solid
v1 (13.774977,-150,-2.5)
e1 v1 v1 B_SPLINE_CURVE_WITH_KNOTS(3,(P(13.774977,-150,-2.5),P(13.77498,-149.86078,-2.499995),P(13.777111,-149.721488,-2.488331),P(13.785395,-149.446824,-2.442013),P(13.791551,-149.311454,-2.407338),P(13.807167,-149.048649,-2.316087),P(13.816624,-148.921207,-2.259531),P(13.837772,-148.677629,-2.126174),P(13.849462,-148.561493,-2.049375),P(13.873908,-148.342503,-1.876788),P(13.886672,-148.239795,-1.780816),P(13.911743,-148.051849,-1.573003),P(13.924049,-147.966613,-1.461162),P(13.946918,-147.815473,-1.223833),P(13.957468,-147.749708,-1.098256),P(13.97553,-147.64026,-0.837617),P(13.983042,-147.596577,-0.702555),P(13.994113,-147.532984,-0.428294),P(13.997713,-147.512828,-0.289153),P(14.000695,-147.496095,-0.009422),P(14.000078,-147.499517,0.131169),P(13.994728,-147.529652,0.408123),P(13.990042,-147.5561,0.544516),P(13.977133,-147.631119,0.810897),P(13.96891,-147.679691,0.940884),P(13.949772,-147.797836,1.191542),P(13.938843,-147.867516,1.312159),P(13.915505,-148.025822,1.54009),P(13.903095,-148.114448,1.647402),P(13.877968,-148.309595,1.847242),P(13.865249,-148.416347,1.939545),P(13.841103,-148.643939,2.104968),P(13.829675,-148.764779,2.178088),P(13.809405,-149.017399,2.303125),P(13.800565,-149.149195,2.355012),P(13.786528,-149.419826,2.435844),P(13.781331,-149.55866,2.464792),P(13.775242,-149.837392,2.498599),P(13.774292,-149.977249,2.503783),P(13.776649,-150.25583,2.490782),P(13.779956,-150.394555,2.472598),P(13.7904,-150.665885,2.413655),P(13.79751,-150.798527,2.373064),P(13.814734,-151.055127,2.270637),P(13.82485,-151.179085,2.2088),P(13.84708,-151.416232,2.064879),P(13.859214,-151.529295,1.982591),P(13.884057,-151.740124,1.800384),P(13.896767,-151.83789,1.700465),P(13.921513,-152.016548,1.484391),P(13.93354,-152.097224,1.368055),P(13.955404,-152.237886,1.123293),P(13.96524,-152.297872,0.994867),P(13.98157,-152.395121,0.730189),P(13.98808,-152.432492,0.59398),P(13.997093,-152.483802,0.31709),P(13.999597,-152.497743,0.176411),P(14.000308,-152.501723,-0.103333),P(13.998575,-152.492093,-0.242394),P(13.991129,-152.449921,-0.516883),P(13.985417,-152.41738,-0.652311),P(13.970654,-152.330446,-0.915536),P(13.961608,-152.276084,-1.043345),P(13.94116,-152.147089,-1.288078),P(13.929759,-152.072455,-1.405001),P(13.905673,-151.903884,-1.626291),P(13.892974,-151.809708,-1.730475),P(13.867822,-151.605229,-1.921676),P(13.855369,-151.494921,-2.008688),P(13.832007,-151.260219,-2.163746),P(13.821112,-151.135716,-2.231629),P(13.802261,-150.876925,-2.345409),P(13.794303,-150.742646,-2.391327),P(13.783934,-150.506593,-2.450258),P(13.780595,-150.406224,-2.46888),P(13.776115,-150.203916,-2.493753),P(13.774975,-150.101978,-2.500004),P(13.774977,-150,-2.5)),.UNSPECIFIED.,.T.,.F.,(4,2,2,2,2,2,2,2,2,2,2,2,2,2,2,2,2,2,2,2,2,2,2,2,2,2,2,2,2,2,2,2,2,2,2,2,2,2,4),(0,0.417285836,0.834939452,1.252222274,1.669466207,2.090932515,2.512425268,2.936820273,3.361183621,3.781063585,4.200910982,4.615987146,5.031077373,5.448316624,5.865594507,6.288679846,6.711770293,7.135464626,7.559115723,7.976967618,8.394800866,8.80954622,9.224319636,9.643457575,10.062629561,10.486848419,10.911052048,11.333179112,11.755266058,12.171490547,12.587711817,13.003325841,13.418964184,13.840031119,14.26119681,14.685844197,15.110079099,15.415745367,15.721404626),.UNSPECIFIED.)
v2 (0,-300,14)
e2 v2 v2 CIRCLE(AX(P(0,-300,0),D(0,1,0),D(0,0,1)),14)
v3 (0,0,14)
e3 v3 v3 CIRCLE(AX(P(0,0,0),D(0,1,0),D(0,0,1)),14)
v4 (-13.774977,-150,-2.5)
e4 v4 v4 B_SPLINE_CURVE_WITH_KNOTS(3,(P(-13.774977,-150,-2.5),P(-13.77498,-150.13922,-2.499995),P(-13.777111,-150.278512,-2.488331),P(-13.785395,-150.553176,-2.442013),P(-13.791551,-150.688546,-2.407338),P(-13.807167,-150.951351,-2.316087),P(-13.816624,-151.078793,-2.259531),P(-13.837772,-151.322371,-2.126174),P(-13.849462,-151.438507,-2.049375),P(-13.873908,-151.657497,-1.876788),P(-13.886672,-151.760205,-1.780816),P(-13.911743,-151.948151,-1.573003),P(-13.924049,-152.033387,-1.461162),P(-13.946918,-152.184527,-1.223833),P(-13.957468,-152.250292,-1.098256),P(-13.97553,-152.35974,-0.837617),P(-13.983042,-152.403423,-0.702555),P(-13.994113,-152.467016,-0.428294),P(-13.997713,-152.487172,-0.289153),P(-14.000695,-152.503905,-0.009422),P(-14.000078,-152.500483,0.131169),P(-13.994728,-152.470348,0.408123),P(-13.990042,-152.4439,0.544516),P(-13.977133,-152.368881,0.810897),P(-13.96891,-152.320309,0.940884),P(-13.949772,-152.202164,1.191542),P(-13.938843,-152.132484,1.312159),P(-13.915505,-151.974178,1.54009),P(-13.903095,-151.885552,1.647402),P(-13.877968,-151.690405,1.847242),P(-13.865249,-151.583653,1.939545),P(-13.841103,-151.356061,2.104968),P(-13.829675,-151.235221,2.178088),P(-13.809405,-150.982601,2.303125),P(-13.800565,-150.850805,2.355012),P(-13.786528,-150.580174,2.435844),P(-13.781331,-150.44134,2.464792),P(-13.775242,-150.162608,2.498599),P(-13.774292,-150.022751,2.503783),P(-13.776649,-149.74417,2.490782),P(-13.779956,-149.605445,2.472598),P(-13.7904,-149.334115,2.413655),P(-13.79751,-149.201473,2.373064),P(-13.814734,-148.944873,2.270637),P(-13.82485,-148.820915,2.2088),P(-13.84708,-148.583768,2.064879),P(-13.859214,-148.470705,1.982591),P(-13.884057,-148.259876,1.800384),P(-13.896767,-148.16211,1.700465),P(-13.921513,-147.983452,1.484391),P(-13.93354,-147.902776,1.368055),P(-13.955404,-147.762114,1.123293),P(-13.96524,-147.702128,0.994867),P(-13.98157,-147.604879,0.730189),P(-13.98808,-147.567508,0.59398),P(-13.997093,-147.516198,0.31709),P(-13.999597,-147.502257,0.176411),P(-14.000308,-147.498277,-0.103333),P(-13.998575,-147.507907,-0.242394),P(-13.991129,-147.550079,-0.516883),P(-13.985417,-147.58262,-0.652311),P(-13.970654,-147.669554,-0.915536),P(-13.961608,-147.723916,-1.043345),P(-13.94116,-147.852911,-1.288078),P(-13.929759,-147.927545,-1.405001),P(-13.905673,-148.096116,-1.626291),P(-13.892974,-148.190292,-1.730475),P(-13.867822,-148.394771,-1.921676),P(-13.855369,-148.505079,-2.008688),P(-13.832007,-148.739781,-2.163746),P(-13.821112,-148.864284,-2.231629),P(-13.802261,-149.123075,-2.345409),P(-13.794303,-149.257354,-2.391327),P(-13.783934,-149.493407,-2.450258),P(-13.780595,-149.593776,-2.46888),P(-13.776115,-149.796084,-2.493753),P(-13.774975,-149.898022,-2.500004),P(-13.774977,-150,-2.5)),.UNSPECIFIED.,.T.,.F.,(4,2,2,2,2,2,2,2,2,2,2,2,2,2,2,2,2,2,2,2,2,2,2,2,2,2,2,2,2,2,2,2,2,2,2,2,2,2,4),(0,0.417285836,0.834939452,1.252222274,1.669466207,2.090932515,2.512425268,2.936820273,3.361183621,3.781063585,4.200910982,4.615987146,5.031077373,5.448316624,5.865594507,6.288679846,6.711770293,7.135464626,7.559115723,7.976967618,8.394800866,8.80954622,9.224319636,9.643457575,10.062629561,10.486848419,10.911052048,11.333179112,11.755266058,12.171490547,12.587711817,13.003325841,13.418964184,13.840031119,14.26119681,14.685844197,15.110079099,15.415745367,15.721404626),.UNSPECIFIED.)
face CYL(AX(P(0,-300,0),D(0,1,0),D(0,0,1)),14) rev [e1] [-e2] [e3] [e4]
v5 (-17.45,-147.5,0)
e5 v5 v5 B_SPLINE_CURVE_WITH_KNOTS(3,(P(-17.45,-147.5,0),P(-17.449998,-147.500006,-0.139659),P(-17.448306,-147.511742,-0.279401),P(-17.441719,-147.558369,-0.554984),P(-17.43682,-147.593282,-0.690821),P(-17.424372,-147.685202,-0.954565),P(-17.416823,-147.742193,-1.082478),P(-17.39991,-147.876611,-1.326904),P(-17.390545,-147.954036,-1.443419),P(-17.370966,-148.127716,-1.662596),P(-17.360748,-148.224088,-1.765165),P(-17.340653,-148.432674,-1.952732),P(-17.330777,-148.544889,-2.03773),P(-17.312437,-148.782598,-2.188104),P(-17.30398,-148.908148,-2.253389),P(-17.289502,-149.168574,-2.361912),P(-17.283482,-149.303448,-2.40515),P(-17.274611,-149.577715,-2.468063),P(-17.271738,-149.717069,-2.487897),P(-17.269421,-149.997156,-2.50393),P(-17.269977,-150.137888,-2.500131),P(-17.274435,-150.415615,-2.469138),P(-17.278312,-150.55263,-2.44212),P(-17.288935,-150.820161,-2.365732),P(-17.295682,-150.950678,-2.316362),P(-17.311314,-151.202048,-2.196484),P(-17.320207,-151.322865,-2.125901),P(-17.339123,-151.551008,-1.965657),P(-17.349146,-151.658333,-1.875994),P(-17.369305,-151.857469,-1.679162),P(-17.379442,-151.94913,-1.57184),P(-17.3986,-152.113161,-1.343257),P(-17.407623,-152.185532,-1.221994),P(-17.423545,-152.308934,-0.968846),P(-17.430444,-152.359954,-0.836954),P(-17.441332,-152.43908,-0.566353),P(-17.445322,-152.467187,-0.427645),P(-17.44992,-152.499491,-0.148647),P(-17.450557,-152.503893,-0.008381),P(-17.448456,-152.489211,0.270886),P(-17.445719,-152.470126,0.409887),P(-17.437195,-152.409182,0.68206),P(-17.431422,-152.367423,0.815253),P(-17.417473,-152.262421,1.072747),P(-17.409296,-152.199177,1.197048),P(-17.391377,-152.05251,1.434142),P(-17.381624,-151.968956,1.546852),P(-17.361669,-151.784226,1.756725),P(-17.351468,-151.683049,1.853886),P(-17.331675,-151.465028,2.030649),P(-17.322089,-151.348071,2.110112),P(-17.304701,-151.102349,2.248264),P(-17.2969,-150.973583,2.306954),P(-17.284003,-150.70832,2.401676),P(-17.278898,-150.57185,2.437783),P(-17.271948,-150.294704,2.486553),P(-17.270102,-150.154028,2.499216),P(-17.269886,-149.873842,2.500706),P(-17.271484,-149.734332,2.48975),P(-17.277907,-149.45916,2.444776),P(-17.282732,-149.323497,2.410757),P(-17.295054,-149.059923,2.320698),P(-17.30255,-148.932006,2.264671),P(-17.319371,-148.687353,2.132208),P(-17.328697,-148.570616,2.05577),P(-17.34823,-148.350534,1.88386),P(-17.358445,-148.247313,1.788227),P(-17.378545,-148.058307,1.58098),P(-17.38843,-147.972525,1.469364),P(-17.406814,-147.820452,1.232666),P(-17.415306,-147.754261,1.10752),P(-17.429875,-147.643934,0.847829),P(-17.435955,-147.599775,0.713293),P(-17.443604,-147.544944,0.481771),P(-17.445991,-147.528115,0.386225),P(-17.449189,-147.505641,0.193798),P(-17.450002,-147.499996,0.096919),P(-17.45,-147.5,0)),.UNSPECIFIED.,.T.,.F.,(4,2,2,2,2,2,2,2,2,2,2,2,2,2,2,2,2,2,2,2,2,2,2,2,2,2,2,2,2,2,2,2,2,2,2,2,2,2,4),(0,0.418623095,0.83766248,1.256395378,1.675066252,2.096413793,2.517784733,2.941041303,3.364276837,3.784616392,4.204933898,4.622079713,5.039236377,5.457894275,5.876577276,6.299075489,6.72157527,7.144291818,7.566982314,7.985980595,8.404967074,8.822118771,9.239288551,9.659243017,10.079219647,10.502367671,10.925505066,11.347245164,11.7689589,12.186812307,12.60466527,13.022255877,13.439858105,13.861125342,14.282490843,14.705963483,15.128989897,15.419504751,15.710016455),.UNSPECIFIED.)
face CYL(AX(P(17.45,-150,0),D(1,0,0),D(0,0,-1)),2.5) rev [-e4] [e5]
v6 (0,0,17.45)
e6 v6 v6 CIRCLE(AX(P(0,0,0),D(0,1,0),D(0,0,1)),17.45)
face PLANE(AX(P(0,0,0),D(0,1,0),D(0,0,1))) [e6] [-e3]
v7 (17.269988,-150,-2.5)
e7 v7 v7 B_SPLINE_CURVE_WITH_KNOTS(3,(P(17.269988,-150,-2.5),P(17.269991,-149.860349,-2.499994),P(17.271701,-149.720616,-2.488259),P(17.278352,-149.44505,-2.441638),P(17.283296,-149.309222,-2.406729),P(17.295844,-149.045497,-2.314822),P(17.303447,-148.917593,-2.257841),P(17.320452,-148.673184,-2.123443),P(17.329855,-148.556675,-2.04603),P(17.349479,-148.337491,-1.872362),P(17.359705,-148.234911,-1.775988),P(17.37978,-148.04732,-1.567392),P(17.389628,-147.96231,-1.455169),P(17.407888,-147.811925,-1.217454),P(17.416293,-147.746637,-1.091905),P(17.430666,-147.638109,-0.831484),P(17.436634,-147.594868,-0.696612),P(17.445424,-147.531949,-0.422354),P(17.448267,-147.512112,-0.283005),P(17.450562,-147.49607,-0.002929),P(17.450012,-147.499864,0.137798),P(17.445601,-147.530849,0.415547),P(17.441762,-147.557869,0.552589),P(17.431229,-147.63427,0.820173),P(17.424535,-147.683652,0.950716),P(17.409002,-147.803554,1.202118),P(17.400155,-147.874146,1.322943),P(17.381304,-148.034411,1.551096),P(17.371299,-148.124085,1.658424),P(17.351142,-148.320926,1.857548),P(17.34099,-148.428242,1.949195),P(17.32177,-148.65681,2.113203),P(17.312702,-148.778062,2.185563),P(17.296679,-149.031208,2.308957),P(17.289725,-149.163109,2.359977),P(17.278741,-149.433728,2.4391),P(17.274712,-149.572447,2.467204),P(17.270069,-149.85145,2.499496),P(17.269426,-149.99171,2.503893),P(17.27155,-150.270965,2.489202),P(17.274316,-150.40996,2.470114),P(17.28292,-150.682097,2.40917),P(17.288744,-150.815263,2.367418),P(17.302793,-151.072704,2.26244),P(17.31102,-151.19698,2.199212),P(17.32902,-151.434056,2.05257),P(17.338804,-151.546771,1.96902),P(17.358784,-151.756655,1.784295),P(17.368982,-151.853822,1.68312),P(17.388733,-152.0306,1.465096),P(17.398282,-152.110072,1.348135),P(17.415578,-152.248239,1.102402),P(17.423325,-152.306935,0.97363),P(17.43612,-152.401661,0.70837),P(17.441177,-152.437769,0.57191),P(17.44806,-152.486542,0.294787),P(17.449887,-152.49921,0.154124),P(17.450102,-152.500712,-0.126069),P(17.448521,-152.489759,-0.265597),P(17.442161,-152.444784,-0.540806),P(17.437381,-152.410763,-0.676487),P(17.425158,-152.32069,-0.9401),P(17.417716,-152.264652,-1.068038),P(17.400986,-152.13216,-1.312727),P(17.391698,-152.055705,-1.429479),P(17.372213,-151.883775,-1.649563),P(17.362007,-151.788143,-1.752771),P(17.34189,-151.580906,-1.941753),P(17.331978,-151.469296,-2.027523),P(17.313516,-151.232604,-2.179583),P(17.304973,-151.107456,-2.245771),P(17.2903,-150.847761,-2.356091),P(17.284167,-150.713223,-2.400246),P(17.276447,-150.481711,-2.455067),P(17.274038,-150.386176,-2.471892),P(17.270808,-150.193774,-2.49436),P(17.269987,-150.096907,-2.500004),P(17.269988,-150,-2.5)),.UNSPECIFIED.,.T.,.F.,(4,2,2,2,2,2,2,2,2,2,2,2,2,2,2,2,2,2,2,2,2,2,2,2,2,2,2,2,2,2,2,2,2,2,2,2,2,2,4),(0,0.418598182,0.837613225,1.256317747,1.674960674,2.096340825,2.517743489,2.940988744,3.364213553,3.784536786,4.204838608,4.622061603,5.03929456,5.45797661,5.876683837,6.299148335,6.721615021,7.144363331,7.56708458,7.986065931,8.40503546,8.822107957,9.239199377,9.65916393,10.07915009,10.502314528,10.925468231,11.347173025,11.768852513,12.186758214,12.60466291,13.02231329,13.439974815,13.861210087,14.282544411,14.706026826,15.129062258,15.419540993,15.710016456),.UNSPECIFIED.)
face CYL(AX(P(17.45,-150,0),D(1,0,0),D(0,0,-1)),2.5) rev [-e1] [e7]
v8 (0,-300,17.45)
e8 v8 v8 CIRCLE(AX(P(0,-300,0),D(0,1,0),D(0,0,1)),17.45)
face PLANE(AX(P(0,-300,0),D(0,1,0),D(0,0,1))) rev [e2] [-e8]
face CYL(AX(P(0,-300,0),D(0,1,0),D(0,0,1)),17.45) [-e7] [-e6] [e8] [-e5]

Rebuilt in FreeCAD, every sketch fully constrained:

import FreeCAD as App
import Part
import Sketcher
from FreeCAD import Vector
Q = App.Units.Quantity

doc = App.newDocument("Part")
body = doc.addObject("PartDesign::Body", "Body")

sketch1 = body.newObject("Sketcher::SketchObject", "Sketch")
sketch1.AttachmentSupport = (doc.getObject("XZ_Plane"), [""])
sketch1.MapMode = "FlatFace"
sketch1.addGeometry([
    Part.Circle(Vector(0, 0, 0), Vector(0, 0, 1), 17),
    Part.Circle(Vector(0, 0, 0), Vector(0, 0, 1), 14),
], False)
sketch1.addConstraint([
    Sketcher.Constraint("Coincident", 0, 3, -1, 1),
    Sketcher.Constraint("Coincident", 1, 3, -1, 1),
    Sketcher.Constraint("Diameter", 1, Q("28 mm")),
    Sketcher.Constraint("Diameter", 0, Q("34.9 mm")),
])
pad1 = body.newObject("PartDesign::Pad", "Pad")
pad1.Profile = sketch1
pad1.Length = 300

sketch2 = body.newObject("Sketcher::SketchObject", "Sketch001")
sketch2.AttachmentSupport = (doc.getObject("YZ_Plane"), [""])
sketch2.MapMode = "FlatFace"
sketch2.AttachmentOffset = App.Placement(Vector(0, 0, 17.45), App.Rotation())
sketch2.addGeometry(Part.Circle(Vector(-150, 0, 0), Vector(0, 0, 1), 2.5), False)
sketch2.addConstraint([
    Sketcher.Constraint("PointOnObject", 0, 3, -1),
    Sketcher.Constraint("Diameter", 0, Q("5 mm")),
    Sketcher.Constraint("DistanceX", 0, 3, -1, 1, Q("150 mm")),
])
doc.recompute()
hole = body.newObject("PartDesign::Hole", "Hole")
hole.Profile = sketch2
hole.ThreadType = "None"
hole.Diameter = 5
hole.DepthType = "ThroughAll"

doc.recompute()
